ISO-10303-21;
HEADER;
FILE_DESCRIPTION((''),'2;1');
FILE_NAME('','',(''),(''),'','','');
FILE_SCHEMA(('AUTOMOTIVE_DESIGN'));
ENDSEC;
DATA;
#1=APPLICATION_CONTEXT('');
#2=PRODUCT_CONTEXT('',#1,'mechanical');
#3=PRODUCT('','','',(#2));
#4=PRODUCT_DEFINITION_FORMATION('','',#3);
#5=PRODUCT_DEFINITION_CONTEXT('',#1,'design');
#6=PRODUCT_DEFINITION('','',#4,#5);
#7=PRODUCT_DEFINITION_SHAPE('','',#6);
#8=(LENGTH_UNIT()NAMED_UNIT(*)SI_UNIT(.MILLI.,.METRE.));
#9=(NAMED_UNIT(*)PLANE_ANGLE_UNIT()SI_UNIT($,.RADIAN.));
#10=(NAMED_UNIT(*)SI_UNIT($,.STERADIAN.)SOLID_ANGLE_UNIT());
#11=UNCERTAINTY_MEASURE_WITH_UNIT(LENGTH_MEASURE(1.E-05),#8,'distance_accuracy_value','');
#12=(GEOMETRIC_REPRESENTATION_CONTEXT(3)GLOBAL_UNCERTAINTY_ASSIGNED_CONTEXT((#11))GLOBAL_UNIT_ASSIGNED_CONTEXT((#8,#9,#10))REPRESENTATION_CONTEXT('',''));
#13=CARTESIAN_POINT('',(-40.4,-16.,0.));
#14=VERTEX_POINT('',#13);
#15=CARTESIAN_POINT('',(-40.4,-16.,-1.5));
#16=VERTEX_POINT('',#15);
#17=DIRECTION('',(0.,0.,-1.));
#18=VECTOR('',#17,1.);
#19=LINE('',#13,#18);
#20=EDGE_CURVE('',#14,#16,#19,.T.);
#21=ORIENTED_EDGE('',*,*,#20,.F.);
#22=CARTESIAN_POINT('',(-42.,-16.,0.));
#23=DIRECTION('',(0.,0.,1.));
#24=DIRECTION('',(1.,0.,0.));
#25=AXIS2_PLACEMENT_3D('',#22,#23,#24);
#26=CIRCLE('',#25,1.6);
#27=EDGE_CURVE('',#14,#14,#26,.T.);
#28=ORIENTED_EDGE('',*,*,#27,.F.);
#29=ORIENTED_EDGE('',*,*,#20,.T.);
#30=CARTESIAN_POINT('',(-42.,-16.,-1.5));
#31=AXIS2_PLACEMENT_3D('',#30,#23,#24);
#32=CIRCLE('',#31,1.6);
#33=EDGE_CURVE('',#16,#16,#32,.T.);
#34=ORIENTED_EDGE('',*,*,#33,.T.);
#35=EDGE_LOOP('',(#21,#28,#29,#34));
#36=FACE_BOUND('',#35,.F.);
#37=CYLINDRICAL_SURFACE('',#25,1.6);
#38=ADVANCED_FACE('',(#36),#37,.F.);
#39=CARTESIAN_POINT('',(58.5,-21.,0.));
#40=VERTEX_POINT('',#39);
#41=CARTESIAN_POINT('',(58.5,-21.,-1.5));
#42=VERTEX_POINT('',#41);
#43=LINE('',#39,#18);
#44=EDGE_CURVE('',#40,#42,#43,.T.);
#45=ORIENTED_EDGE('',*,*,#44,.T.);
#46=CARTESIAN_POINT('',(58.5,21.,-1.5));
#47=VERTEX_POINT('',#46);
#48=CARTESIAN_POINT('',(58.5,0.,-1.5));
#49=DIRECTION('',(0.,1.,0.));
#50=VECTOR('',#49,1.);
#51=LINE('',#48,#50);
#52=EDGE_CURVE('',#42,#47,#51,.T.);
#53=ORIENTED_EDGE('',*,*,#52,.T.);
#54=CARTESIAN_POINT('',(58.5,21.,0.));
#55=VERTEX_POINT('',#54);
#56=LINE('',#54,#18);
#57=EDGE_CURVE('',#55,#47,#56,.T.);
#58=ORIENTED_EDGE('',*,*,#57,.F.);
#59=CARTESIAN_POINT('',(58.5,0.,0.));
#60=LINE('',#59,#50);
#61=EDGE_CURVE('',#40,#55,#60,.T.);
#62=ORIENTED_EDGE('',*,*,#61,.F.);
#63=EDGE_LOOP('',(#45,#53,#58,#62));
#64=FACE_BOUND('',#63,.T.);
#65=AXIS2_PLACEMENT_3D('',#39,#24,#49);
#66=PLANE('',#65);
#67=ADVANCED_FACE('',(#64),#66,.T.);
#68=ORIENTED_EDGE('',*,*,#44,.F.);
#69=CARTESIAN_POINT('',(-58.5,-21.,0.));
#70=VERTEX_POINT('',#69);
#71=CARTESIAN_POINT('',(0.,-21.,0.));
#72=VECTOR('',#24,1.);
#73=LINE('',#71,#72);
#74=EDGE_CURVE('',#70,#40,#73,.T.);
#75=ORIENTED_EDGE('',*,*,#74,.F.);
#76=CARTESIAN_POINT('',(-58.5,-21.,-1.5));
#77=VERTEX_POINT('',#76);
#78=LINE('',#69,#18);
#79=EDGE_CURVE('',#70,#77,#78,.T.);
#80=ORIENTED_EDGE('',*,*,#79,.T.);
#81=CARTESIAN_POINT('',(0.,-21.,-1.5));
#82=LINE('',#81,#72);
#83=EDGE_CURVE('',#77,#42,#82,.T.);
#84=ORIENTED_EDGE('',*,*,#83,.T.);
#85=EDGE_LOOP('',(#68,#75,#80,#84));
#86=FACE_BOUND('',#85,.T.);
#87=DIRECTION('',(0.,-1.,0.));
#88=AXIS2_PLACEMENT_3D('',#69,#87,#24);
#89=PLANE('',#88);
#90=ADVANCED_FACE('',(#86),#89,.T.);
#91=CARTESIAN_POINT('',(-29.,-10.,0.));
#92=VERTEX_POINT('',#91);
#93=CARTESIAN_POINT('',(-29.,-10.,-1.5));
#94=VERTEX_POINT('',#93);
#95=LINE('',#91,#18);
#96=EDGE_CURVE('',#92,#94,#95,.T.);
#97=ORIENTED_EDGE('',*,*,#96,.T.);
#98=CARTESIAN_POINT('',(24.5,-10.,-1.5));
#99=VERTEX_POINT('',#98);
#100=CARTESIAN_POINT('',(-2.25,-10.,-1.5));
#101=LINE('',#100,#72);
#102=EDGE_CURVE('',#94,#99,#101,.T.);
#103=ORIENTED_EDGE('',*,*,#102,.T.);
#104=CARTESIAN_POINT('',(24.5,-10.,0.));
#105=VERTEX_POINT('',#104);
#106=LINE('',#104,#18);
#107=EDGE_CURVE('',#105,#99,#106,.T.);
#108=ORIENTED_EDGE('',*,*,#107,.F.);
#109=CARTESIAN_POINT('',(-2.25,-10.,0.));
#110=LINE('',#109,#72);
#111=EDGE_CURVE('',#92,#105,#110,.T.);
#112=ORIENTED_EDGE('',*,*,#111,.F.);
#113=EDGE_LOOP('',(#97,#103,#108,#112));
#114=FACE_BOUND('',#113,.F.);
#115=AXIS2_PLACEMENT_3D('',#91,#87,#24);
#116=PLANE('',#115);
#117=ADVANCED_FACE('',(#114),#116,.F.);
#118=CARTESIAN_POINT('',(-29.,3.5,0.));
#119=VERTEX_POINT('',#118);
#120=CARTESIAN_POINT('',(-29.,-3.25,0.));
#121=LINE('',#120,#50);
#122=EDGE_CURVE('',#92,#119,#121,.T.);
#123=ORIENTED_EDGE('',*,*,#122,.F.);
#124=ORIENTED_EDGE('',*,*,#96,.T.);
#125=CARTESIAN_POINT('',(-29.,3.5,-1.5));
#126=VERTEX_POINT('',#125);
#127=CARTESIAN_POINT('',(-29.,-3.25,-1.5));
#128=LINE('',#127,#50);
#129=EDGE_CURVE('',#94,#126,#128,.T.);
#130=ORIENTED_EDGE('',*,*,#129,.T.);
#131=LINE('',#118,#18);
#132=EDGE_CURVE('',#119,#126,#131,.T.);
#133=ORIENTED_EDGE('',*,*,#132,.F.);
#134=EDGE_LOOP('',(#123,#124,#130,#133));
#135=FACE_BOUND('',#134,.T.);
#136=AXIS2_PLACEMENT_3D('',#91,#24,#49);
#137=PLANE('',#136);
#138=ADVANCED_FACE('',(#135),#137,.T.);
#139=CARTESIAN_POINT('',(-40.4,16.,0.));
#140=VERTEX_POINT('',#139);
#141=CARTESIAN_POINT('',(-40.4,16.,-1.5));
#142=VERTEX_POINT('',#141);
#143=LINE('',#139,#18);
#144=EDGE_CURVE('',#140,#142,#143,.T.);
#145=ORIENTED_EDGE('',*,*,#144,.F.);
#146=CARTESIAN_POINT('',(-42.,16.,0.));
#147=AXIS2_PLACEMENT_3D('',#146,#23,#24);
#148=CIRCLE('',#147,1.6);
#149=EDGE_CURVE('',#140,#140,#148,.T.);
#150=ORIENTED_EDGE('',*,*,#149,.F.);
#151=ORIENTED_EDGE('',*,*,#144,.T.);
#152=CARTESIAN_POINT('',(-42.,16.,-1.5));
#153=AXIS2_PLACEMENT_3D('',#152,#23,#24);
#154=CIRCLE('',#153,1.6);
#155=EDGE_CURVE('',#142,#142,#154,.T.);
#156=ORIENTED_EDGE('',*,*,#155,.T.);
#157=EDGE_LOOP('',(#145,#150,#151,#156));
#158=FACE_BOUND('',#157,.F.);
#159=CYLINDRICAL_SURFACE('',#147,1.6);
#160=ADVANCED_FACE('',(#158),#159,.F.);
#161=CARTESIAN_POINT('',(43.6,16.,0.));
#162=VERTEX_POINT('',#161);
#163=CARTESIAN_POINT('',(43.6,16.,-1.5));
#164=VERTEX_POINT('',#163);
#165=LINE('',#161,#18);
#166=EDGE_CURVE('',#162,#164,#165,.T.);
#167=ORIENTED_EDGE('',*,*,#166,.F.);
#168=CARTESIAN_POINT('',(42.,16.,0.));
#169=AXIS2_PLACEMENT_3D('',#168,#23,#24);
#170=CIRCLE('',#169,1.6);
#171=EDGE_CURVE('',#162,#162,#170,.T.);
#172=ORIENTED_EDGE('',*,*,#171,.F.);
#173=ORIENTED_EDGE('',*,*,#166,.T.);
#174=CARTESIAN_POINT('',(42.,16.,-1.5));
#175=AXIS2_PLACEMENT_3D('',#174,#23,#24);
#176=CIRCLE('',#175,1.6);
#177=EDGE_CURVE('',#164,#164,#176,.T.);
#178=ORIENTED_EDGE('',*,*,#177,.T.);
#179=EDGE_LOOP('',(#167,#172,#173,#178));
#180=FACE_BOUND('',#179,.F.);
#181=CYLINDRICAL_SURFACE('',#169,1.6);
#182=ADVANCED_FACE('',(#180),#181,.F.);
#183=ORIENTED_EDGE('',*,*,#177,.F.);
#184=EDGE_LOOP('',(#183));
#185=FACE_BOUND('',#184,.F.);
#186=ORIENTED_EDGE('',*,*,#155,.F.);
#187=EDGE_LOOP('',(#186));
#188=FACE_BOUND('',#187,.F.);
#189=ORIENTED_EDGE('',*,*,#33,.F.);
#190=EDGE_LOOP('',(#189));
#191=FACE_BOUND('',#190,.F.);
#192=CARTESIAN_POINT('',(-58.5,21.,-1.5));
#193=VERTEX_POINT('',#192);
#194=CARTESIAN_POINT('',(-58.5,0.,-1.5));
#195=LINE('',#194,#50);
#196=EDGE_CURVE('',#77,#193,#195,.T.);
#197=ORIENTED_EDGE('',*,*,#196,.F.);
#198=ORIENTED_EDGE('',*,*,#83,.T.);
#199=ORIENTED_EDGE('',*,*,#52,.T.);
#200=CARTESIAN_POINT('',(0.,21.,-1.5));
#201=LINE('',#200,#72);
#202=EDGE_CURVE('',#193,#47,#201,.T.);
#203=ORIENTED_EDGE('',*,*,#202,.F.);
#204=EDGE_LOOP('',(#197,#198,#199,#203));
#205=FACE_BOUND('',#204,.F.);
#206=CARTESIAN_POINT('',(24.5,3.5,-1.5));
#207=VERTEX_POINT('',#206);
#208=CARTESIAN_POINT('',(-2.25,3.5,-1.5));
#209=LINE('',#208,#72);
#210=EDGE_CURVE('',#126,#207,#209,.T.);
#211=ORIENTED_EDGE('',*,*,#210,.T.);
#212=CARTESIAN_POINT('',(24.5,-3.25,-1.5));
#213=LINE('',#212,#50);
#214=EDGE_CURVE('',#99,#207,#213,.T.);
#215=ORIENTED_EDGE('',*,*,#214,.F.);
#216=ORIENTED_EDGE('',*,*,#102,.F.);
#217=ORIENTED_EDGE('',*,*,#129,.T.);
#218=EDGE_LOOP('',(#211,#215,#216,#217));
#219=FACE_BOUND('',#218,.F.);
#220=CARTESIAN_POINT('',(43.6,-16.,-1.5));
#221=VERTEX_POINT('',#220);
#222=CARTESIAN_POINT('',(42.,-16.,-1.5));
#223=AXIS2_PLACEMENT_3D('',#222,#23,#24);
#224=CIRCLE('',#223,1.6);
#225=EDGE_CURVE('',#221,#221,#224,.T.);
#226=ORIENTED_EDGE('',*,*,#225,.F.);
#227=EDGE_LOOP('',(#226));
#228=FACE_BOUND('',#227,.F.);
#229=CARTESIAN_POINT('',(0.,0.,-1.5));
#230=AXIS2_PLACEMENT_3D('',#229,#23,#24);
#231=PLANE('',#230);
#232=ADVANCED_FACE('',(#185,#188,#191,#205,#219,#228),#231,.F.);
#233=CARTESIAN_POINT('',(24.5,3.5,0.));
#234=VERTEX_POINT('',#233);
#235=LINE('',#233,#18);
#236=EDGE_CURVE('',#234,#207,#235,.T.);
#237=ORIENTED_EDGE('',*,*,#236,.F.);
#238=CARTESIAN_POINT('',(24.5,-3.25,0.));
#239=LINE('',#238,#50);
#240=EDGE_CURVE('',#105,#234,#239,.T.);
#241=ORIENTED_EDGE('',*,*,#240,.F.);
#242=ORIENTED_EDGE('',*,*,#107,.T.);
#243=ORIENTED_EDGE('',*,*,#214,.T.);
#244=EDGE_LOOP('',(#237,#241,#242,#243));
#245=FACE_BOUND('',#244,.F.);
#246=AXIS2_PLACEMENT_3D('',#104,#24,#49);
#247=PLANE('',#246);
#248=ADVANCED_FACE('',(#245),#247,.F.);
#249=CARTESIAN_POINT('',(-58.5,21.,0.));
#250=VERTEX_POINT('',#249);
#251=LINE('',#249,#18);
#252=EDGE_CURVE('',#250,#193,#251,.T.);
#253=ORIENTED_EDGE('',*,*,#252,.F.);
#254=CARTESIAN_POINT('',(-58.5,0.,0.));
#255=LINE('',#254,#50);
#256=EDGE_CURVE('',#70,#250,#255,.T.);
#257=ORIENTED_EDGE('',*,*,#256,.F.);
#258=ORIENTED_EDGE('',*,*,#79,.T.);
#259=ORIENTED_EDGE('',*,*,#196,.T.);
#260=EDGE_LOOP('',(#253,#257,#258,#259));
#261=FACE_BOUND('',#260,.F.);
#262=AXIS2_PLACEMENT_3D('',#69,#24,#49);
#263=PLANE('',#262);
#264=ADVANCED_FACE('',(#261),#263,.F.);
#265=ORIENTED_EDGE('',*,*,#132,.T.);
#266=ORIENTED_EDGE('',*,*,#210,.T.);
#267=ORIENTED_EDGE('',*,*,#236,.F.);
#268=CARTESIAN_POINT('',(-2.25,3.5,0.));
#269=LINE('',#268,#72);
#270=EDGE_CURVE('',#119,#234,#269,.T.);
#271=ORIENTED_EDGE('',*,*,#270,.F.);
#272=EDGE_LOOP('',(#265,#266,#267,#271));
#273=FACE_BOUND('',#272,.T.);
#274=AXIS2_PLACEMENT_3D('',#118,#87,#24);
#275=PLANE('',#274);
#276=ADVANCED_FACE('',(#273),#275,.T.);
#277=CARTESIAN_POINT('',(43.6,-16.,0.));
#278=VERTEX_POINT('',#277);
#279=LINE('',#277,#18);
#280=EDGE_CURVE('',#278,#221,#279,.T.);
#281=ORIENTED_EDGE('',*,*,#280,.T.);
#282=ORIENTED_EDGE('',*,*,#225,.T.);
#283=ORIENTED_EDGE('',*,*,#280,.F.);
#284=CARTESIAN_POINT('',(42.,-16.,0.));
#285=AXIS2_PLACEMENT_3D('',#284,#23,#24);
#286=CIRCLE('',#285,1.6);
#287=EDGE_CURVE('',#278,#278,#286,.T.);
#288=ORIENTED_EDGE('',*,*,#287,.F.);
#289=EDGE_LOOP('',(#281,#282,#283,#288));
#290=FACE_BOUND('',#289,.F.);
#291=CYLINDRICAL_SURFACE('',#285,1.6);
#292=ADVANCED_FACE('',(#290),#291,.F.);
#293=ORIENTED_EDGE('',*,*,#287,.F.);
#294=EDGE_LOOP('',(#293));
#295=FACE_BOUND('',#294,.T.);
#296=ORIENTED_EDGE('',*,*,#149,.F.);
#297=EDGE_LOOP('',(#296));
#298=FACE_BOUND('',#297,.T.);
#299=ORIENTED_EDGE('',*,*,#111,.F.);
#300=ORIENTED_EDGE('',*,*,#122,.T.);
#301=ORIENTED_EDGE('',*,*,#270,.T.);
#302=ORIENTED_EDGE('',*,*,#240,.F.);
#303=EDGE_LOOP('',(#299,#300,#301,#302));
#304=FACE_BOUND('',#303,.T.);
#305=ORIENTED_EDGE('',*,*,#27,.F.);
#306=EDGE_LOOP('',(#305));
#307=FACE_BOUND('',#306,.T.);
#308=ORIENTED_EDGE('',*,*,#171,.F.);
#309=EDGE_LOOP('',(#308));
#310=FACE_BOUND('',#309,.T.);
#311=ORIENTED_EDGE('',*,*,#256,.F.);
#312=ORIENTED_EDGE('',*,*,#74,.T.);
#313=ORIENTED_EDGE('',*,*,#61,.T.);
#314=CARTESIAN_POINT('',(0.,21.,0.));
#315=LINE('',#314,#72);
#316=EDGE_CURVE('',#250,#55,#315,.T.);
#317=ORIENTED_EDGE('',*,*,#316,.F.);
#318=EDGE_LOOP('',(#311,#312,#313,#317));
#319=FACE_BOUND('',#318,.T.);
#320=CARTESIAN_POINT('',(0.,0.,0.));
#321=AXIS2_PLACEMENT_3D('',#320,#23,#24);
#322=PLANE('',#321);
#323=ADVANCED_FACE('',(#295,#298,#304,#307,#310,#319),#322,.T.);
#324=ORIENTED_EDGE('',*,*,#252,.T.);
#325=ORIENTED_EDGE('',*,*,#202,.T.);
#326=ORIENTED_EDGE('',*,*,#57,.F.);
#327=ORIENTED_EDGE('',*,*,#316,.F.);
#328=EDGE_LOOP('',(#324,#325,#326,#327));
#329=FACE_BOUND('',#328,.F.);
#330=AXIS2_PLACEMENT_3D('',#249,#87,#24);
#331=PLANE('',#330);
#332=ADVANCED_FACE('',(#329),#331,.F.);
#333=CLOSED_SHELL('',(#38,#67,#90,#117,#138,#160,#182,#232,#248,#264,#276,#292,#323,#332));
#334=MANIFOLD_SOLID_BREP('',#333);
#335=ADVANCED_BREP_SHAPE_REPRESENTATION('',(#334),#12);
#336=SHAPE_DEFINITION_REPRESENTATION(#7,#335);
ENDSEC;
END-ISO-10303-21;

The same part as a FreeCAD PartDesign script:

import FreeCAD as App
import Part
import Sketcher
from FreeCAD import Vector

doc = App.newDocument("Part")
body = doc.addObject("PartDesign::Body", "Body")

# Sketch on XY plane
sketch1 = doc.addObject("Sketcher::SketchObject", "Sketch")
body.addObject(sketch1)
sketch1.AttachmentSupport = (doc.XY_Plane, [""])
sketch1.MapMode = "FlatFace"
sketch1.addGeometry(Part.LineSegment(Vector(-58.5, 21, 0), Vector(-58.5, -21, 0)), False)
sketch1.addGeometry(Part.LineSegment(Vector(-58.5, -21, 0), Vector(58.5, -21, 0)), False)
sketch1.addGeometry(Part.LineSegment(Vector(58.5, -21, 0), Vector(58.5, 21, 0)), False)
sketch1.addGeometry(Part.LineSegment(Vector(58.5, 21, 0), Vector(-58.5, 21, 0)), False)
sketch1.addGeometry(Part.Circle(Vector(-42, -16, 0), Vector(0, 0, 1), 1.6), False)
sketch1.addGeometry(Part.LineSegment(Vector(24.5, -10, 0), Vector(-29, -10, 0)), False)
sketch1.addGeometry(Part.LineSegment(Vector(-29, -10, 0), Vector(-29, 3.5, 0)), False)
sketch1.addGeometry(Part.LineSegment(Vector(-29, 3.5, 0), Vector(24.5, 3.5, 0)), False)
sketch1.addGeometry(Part.LineSegment(Vector(24.5, 3.5, 0), Vector(24.5, -10, 0)), False)
sketch1.addGeometry(Part.Circle(Vector(42, -16, 0), Vector(0, 0, 1), 1.6), False)
sketch1.addGeometry(Part.Circle(Vector(-42, 16, 0), Vector(0, 0, 1), 1.6), False)
sketch1.addGeometry(Part.Circle(Vector(42, 16, 0), Vector(0, 0, 1), 1.6), False)
sketch1.addConstraint(Sketcher.Constraint("Coincident", 0, 2, 1, 1))
sketch1.addConstraint(Sketcher.Constraint("Coincident", 1, 2, 2, 1))
sketch1.addConstraint(Sketcher.Constraint("Coincident", 2, 2, 3, 1))
sketch1.addConstraint(Sketcher.Constraint("Coincident", 3, 2, 0, 1))
sketch1.addConstraint(Sketcher.Constraint("Coincident", 5, 2, 6, 1))
sketch1.addConstraint(Sketcher.Constraint("Coincident", 6, 2, 7, 1))
sketch1.addConstraint(Sketcher.Constraint("Coincident", 7, 2, 8, 1))
sketch1.addConstraint(Sketcher.Constraint("Coincident", 8, 2, 5, 1))
sketch1.addConstraint(Sketcher.Constraint("Vertical", 0))
sketch1.addConstraint(Sketcher.Constraint("Horizontal", 1))
sketch1.addConstraint(Sketcher.Constraint("Vertical", 2))
sketch1.addConstraint(Sketcher.Constraint("Horizontal", 3))
sketch1.addConstraint(Sketcher.Constraint("Horizontal", 5))
sketch1.addConstraint(Sketcher.Constraint("Vertical", 6))
sketch1.addConstraint(Sketcher.Constraint("Horizontal", 7))
sketch1.addConstraint(Sketcher.Constraint("Vertical", 8))
sketch1.addConstraint(Sketcher.Constraint("Equal", 4, 9))
sketch1.addConstraint(Sketcher.Constraint("Equal", 9, 10))
sketch1.addConstraint(Sketcher.Constraint("Equal", 10, 11))
sketch1.addConstraint(Sketcher.Constraint("Symmetric", 9, 3, 10, 3, -1, 1))
sketch1.addConstraint(Sketcher.Constraint("Symmetric", 4, 3, 11, 3, -1, 1))
sketch1.addConstraint(Sketcher.Constraint("Symmetric", 0, 2, 2, 2, -1, 1))
sketch1.addConstraint(Sketcher.Constraint("Symmetric", 4, 3, 9, 3, -2))
sketch1.addConstraint(Sketcher.Constraint("Diameter", 4, 3.2))
sketch1.addConstraint(Sketcher.Constraint("DistanceX", 1, 1, 1, 2, 117.0))
sketch1.addConstraint(Sketcher.Constraint("DistanceY", 0, 2, 0, 1, 42.0))
sketch1.addConstraint(Sketcher.Constraint("DistanceX", 5, 2, 5, 1, 53.5))
sketch1.addConstraint(Sketcher.Constraint("DistanceY", 6, 1, 6, 2, 13.5))
sketch1.addConstraint(Sketcher.Constraint("DistanceX", 4, 3, -1, 1, 42.0))
sketch1.addConstraint(Sketcher.Constraint("DistanceY", 4, 3, -1, 1, 16.0))
sketch1.addConstraint(Sketcher.Constraint("DistanceX", 5, 2, -1, 1, 29.0))
sketch1.addConstraint(Sketcher.Constraint("DistanceY", 5, 2, -1, 1, 10.0))
pad1 = doc.addObject("PartDesign::Pad", "Pad")
body.addObject(pad1)
pad1.Profile = sketch1
pad1.Length = 1.5
pad1.Reversed = True

doc.recompute()
